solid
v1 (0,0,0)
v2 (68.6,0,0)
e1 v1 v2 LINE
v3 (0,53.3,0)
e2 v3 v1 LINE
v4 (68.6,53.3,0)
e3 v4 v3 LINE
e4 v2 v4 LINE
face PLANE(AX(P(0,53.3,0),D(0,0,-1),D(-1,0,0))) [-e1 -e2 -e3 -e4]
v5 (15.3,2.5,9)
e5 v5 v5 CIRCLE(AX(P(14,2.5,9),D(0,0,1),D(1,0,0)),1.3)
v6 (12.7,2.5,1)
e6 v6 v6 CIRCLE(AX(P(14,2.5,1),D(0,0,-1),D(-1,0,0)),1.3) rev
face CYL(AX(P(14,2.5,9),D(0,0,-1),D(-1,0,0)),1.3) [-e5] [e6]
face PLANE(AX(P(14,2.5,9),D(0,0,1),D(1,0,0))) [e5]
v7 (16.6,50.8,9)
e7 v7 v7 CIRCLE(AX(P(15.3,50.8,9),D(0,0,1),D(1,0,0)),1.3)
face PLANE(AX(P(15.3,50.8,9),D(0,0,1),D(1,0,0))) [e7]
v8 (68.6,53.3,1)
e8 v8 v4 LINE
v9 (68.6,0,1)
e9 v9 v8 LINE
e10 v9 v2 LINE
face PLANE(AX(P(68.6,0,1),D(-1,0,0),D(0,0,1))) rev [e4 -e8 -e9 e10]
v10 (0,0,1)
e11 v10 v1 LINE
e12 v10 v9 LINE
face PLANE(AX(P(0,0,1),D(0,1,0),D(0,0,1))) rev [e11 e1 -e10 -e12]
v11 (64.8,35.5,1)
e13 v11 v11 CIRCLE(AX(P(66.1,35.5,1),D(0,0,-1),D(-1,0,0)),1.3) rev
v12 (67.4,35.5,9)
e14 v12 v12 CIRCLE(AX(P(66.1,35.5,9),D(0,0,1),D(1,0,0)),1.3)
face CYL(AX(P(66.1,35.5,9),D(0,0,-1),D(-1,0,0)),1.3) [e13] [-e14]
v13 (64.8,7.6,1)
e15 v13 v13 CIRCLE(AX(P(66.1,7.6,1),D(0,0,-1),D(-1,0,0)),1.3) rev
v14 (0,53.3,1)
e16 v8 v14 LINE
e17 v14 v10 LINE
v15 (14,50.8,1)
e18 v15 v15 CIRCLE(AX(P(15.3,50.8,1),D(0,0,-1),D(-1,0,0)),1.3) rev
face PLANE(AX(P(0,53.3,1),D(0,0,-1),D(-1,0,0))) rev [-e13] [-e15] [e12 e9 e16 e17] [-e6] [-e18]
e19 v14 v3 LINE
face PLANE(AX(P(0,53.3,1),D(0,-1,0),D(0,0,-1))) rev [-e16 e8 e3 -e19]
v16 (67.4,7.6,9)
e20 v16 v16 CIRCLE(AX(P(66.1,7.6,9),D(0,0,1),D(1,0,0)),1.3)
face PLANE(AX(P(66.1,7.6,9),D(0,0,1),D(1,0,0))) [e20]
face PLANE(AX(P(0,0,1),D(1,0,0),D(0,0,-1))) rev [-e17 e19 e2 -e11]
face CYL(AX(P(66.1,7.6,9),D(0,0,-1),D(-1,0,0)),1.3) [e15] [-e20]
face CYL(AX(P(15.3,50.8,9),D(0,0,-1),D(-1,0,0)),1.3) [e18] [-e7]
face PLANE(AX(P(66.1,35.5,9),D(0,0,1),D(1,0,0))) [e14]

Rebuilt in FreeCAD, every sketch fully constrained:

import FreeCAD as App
import Part
import Sketcher
from FreeCAD import Vector


def add_polygon(sketch, points):
    """Adds a closed chain of lines whose ends are joined by coincident constraints."""
    first, n = sketch.GeometryCount, len(points)
    for a, b in zip(points, points[1:] + points[:1]):
        sketch.addGeometry(Part.LineSegment(App.Vector(*a, 0), App.Vector(*b, 0)), False)
    for i in range(n):
        sketch.addConstraint(Sketcher.Constraint("Coincident", first + i, 2, first + (i + 1) % n, 1))

doc = App.newDocument("Part")
body = doc.addObject("PartDesign::Body", "Body")

sketch1 = body.newObject("Sketcher::SketchObject", "Sketch")
sketch1.AttachmentSupport = (doc.getObject("XY_Plane"), [""])
sketch1.MapMode = "FlatFace"
add_polygon(sketch1, [(0, 53), (0, 0), (69, 0), (69, 53)])
sketch1.addConstraint([
    Sketcher.Constraint("Vertical", 0),
    Sketcher.Constraint("Horizontal", 1),
    Sketcher.Constraint("Vertical", 2),
    Sketcher.Constraint("Horizontal", 3),
    Sketcher.Constraint("Coincident", 0, 2, -1, 1),
    Sketcher.Constraint("DistanceX", 1, 1, 1, 2, 68.6),
    Sketcher.Constraint("DistanceY", 0, 2, 0, 1, 53.3),
])
pad1 = body.newObject("PartDesign::Pad", "Pad")
pad1.Profile = sketch1
pad1.Length = 1

sketch2 = body.newObject("Sketcher::SketchObject", "Sketch001")
sketch2.AttachmentSupport = (doc.getObject("XY_Plane"), [""])
sketch2.MapMode = "FlatFace"
sketch2.AttachmentOffset = App.Placement(Vector(0, 0, 1), App.Rotation())
sketch2.addGeometry([
    Part.Circle(Vector(14, 2.5, 0), Vector(0, 0, 1), 1.3),
    Part.Circle(Vector(15.3, 50.8, 0), Vector(0, 0, 1), 1.3),
    Part.Circle(Vector(66.1, 7.6, 0), Vector(0, 0, 1), 1.3),
    Part.Circle(Vector(66.1, 35.5, 0), Vector(0, 0, 1), 1.3),
], False)
sketch2.addConstraint([
    Sketcher.Constraint("Equal", 0, 1),
    Sketcher.Constraint("Equal", 1, 2),
    Sketcher.Constraint("Equal", 2, 3),
    Sketcher.Constraint("Vertical", 2, 3, 3, 3),
    Sketcher.Constraint("Diameter", 0, 2.6),
    Sketcher.Constraint("DistanceX", -1, 1, 0, 3, 14.0),
    Sketcher.Constraint("DistanceY", 0, 3, 3, 3, 33.0),
    Sketcher.Constraint("DistanceY", -1, 1, 0, 3, 2.5),
    Sketcher.Constraint("DistanceX", -1, 1, 1, 3, 15.3),
    Sketcher.Constraint("DistanceY", -1, 1, 1, 3, 50.8),
    Sketcher.Constraint("DistanceX", -1, 1, 2, 3, 66.1),
    Sketcher.Constraint("DistanceY", -1, 1, 2, 3, 7.6),
])
pad2 = body.newObject("PartDesign::Pad", "Pad001")
pad2.Profile = sketch2
pad2.Length = 8

doc.recompute()
